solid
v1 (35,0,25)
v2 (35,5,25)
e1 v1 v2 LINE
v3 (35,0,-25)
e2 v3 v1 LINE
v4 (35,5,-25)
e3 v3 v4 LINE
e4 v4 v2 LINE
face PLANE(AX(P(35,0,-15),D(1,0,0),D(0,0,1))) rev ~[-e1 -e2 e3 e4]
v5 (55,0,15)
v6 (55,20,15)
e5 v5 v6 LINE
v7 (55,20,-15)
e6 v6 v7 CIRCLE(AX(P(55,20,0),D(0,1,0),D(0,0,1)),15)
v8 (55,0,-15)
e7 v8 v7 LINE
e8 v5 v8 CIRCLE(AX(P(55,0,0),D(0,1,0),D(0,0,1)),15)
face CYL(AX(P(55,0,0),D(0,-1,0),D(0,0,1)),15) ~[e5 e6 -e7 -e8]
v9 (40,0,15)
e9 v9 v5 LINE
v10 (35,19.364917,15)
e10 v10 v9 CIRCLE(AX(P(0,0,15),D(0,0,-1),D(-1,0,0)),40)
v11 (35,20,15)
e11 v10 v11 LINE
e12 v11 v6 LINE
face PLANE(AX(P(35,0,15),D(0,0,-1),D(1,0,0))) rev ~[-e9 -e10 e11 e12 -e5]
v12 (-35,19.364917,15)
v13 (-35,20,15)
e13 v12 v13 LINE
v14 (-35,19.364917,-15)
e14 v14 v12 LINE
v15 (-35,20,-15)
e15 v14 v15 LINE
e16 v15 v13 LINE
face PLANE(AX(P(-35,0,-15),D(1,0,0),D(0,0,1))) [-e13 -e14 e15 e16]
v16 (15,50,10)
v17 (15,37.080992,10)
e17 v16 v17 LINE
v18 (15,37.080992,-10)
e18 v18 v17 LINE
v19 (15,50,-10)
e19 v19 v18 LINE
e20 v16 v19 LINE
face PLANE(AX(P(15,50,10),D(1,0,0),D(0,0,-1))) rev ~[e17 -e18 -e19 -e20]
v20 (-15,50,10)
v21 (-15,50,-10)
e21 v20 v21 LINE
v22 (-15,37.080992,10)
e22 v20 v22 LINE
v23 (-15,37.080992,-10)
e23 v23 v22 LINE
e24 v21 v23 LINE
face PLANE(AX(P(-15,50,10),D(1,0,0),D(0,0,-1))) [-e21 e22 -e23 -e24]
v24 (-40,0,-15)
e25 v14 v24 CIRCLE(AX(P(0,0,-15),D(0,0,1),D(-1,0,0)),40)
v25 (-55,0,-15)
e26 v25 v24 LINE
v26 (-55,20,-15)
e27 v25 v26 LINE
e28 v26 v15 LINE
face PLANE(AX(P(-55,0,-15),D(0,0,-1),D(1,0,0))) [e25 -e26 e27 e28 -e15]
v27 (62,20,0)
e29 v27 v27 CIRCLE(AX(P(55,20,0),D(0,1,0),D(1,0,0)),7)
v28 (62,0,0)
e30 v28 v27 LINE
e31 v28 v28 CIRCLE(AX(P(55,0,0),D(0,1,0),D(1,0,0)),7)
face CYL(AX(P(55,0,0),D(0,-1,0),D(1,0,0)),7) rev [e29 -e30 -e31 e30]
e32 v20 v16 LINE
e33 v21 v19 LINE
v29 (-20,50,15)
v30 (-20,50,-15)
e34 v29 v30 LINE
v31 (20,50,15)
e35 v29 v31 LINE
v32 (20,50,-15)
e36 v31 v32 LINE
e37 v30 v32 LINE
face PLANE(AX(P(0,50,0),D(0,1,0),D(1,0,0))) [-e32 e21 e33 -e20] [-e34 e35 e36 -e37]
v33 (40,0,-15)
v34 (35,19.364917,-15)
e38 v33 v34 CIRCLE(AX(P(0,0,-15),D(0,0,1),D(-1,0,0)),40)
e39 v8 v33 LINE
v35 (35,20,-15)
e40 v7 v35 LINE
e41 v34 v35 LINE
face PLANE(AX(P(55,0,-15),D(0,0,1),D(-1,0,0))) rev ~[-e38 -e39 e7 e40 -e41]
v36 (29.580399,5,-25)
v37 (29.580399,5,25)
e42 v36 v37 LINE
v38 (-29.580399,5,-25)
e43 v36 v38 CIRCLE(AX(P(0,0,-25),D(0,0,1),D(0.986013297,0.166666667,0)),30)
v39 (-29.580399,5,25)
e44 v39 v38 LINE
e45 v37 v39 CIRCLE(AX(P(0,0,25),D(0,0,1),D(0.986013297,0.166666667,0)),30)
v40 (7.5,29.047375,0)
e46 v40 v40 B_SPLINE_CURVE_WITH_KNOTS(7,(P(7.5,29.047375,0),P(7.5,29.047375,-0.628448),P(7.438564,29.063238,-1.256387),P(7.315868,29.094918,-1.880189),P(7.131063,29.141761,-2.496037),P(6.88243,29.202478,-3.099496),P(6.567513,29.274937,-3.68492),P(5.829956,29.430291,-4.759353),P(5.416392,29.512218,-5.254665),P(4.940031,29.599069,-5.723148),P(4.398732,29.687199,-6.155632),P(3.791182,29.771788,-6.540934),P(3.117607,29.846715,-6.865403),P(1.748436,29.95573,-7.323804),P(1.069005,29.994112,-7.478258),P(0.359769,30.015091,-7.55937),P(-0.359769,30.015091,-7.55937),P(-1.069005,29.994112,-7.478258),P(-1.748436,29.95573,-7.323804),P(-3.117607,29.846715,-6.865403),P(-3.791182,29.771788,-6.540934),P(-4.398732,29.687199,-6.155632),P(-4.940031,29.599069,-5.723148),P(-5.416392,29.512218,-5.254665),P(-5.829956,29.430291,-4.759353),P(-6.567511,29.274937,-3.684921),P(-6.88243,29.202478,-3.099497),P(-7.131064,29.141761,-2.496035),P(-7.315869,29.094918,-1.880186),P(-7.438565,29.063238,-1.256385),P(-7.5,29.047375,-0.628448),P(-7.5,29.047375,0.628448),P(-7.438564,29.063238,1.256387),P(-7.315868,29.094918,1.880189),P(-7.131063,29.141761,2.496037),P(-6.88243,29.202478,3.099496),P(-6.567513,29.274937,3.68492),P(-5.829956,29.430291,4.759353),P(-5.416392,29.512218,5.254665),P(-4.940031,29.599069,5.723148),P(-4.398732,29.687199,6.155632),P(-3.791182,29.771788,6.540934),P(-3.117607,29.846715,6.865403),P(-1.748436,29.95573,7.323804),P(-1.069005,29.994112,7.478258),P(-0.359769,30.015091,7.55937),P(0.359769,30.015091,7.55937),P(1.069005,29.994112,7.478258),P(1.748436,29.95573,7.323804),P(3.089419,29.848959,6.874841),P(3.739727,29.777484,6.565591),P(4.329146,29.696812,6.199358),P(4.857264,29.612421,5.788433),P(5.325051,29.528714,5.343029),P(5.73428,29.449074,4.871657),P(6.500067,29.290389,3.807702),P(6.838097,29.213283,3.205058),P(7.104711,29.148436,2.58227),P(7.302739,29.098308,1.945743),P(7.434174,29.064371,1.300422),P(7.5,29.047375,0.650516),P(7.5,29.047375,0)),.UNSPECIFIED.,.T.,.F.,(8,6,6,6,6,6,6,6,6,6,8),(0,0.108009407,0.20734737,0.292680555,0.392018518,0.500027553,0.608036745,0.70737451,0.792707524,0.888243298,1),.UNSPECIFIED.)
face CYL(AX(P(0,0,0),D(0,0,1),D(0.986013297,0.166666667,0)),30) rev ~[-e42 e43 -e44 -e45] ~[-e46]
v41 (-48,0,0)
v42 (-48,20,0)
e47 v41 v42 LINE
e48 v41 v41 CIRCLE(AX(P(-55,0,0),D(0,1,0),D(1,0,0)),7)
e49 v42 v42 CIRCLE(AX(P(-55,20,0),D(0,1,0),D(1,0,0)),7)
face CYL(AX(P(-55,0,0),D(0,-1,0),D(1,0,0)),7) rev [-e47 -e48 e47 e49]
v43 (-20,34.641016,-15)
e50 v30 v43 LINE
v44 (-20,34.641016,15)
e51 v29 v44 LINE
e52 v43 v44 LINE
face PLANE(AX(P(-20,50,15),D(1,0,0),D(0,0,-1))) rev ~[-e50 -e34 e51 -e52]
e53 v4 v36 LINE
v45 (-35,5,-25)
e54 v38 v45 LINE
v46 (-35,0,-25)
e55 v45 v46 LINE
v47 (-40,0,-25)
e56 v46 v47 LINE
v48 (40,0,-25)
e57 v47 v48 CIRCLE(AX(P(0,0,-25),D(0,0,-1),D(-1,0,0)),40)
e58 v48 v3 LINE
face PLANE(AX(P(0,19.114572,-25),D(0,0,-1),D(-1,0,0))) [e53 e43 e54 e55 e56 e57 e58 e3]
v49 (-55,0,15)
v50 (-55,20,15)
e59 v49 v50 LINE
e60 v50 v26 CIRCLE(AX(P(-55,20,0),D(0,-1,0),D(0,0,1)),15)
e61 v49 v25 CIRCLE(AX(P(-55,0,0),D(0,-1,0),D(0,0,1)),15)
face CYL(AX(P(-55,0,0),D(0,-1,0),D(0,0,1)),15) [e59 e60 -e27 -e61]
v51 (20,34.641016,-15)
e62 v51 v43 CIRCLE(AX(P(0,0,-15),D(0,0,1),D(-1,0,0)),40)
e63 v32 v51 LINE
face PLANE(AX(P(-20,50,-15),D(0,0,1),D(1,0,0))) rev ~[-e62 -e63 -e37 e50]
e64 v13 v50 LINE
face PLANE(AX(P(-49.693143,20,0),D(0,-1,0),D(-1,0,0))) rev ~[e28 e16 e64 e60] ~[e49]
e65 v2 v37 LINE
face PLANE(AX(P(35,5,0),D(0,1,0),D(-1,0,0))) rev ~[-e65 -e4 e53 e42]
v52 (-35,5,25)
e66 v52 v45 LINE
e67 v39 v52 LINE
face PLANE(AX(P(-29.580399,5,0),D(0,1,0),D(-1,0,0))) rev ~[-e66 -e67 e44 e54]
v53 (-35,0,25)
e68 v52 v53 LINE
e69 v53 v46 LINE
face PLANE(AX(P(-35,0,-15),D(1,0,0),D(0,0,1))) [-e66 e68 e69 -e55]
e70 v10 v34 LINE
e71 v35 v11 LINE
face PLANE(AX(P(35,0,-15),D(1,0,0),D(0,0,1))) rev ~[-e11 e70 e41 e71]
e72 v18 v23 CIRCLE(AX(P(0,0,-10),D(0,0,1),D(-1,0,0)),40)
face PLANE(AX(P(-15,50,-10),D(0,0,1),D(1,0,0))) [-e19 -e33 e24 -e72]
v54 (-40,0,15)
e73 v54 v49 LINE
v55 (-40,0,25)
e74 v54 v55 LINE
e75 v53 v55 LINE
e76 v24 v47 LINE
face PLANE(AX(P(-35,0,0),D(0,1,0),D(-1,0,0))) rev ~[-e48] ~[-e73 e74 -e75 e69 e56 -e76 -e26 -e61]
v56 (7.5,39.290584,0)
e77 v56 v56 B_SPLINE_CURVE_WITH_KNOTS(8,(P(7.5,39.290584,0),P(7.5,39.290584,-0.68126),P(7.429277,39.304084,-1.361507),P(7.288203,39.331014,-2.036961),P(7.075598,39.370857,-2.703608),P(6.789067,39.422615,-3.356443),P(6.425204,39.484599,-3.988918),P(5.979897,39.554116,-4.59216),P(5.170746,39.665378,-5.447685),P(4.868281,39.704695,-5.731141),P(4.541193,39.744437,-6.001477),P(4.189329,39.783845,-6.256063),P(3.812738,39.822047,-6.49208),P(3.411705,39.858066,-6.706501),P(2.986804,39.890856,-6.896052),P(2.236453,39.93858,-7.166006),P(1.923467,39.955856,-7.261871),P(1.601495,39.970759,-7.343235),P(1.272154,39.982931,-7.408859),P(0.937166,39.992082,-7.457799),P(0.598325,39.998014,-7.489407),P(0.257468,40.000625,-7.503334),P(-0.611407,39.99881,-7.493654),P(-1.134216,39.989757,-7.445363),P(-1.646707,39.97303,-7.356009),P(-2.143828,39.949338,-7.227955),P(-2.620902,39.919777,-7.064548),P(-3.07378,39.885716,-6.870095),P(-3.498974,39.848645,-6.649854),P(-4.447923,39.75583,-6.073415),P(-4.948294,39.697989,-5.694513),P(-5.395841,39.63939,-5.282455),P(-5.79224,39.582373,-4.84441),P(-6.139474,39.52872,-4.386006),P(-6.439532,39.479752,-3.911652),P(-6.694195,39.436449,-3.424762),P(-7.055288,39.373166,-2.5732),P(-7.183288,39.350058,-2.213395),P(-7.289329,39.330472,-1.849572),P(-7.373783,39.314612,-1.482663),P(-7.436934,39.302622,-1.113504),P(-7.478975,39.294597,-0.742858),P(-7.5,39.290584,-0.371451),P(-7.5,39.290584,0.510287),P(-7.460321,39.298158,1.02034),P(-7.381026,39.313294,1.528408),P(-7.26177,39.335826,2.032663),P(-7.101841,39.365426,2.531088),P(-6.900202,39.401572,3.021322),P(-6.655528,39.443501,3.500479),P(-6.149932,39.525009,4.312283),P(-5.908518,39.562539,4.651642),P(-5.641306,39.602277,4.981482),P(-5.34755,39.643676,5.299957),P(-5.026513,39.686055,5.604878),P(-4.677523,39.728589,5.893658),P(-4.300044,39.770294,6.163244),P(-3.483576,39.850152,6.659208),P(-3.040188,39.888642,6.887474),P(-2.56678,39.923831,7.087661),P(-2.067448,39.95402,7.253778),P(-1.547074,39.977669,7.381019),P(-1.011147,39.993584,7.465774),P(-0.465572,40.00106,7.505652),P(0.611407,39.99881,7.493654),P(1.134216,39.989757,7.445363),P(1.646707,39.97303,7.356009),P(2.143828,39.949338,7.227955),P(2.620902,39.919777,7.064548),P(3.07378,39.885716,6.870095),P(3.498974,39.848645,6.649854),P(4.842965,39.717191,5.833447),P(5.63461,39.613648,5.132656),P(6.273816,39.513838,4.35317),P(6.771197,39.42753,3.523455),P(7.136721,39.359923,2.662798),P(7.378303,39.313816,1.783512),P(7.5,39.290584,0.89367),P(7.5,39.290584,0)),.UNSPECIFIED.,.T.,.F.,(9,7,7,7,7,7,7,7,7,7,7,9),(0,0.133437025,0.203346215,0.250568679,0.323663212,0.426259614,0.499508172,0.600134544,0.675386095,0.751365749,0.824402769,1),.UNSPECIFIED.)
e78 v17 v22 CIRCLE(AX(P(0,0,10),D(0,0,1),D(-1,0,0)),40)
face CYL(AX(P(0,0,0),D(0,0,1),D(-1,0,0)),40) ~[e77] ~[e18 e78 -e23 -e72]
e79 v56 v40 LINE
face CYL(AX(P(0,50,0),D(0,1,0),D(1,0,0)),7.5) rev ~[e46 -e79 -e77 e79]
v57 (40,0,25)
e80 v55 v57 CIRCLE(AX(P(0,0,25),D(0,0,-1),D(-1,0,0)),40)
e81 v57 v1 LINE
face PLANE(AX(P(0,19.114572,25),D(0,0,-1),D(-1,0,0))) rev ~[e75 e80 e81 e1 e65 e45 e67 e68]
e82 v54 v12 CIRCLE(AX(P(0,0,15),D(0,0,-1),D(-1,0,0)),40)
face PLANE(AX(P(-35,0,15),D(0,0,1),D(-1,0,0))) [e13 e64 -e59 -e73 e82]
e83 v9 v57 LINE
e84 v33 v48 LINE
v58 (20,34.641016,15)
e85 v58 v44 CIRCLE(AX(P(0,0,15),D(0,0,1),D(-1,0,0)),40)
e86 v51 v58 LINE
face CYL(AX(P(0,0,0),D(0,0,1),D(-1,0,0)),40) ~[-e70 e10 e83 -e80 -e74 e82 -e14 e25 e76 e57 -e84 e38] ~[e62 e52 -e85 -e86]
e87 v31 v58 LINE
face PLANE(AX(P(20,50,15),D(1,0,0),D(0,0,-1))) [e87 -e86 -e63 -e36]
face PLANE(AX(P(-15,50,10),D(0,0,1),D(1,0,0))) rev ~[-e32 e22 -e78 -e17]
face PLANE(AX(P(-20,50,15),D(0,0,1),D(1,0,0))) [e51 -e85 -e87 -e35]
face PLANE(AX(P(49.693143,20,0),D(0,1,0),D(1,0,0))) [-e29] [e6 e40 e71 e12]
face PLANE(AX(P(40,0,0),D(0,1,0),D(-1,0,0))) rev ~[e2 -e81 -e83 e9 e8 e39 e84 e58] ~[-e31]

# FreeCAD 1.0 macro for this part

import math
import FreeCAD as App
import Part
import Sketcher

doc = App.newDocument("Part")
body = doc.addObject("PartDesign::Body", "Body")

sketch1 = body.newObject("Sketcher::SketchObject", "Sketch")
sketch1.AttachmentSupport = (doc.getObject("XZ_Plane"), [""])
sketch1.MapMode = "FlatFace"
sketch1.addGeometry([
    Part.LineSegment(App.Vector(-35, -15, 0), App.Vector(-55, -15, 0)),
    Part.ArcOfCircle(Part.Circle(App.Vector(-55, 0, 0), App.Vector(0, 0, 1), 15), math.radians(90), math.radians(270)),
    Part.LineSegment(App.Vector(-55, 15, 0), App.Vector(-35, 15, 0)),
    Part.LineSegment(App.Vector(-35, 15, 0), App.Vector(-35, -15, 0)),
    Part.Circle(App.Vector(-55, 0, 0), App.Vector(0, 0, 1), 7),
], False)
sketch1.addConstraint([
    Sketcher.Constraint("Tangent", 0, 2, 1, 2),
    Sketcher.Constraint("Tangent", 1, 1, 2, 1),
    Sketcher.Constraint("Coincident", 2, 2, 3, 1),
    Sketcher.Constraint("Coincident", 3, 2, 0, 1),
    Sketcher.Constraint("Horizontal", 0),
    Sketcher.Constraint("Horizontal", 2),
    Sketcher.Constraint("Vertical", 3),
    Sketcher.Constraint("Coincident", 4, 3, 1, 3),
    Sketcher.Constraint("PointOnObject", 1, 3, -1),
    Sketcher.Constraint("Diameter", 4, 14.0),
    Sketcher.Constraint("Radius", 1, 15.0),
    Sketcher.Constraint("DistanceX", 0, 2, 0, 1, 20.0),
    Sketcher.Constraint("DistanceX", 1, 3, -1, 1, 55.0),
])
pad1 = body.newObject("PartDesign::Pad", "Pad")
pad1.Profile = sketch1
pad1.Length = 20
pad1.Reversed = True
body2 = doc.addObject("PartDesign::Body", "Body001")

sketch2 = body2.newObject("Sketcher::SketchObject", "Sketch001")
sketch2.AttachmentSupport = (doc.getObject("XZ_Plane001"), [""])
sketch2.MapMode = "FlatFace"
sketch2.addGeometry([
    Part.LineSegment(App.Vector(35, 15, 0), App.Vector(55, 15, 0)),
    Part.ArcOfCircle(Part.Circle(App.Vector(55, 0, 0), App.Vector(0, 0, 1), 15), math.radians(-90), math.radians(90)),
    Part.LineSegment(App.Vector(55, -15, 0), App.Vector(35, -15, 0)),
    Part.LineSegment(App.Vector(35, -15, 0), App.Vector(35, 15, 0)),
    Part.Circle(App.Vector(55, 0, 0), App.Vector(0, 0, 1), 7),
], False)
sketch2.addConstraint([
    Sketcher.Constraint("Tangent", 0, 2, 1, 2),
    Sketcher.Constraint("Tangent", 1, 1, 2, 1),
    Sketcher.Constraint("Coincident", 2, 2, 3, 1),
    Sketcher.Constraint("Coincident", 3, 2, 0, 1),
    Sketcher.Constraint("Horizontal", 0),
    Sketcher.Constraint("Horizontal", 2),
    Sketcher.Constraint("Vertical", 3),
    Sketcher.Constraint("Coincident", 4, 3, 1, 3),
    Sketcher.Constraint("PointOnObject", 1, 3, -1),
    Sketcher.Constraint("Diameter", 4, 14.0),
    Sketcher.Constraint("Radius", 1, 15.0),
    Sketcher.Constraint("DistanceX", 0, 1, 0, 2, 20.0),
    Sketcher.Constraint("DistanceX", -1, 1, 1, 3, 55.0),
])
pad2 = body2.newObject("PartDesign::Pad", "Pad001")
pad2.Profile = sketch2
pad2.Length = 20
pad2.Reversed = True
body.AllowCompound = True
doc.recompute()

boolean = body.newObject("PartDesign::Boolean", "Boolean")
boolean.Type = "Fuse"
boolean.addObjects([body2])

sketch3 = body.newObject("Sketcher::SketchObject", "Sketch002")
sketch3.AttachmentSupport = (doc.getObject("XY_Plane"), [""])
sketch3.MapMode = "FlatFace"
sketch3.addGeometry([
    Part.ArcOfCircle(Part.Circle(App.Vector(0, 0, 0), App.Vector(0, 0, 1), 30), math.radians(10), math.radians(170)),
    Part.LineSegment(App.Vector(30, 5, 0), App.Vector(35, 5, 0)),
    Part.LineSegment(App.Vector(35, 5, 0), App.Vector(35, 0, 0)),
    Part.LineSegment(App.Vector(35, 0, 0), App.Vector(40, 0, 0)),
    Part.ArcOfCircle(Part.Circle(App.Vector(0, 0, 0), App.Vector(0, 0, 1), 40), math.radians(0), math.radians(180)),
    Part.LineSegment(App.Vector(-40, 0, 0), App.Vector(-35, 0, 0)),
    Part.LineSegment(App.Vector(-35, 0, 0), App.Vector(-35, 5, 0)),
    Part.LineSegment(App.Vector(-35, 5, 0), App.Vector(-30, 5, 0)),
], False)
sketch3.addConstraint([
    Sketcher.Constraint("Coincident", 0, 1, 1, 1),
    Sketcher.Constraint("Coincident", 1, 2, 2, 1),
    Sketcher.Constraint("Coincident", 2, 2, 3, 1),
    Sketcher.Constraint("Coincident", 3, 2, 4, 1),
    Sketcher.Constraint("Coincident", 4, 2, 5, 1),
    Sketcher.Constraint("Coincident", 5, 2, 6, 1),
    Sketcher.Constraint("Coincident", 6, 2, 7, 1),
    Sketcher.Constraint("Coincident", 7, 2, 0, 2),
    Sketcher.Constraint("Horizontal", 1),
    Sketcher.Constraint("Vertical", 2),
    Sketcher.Constraint("Horizontal", 3),
    Sketcher.Constraint("Horizontal", 5),
    Sketcher.Constraint("Vertical", 6),
    Sketcher.Constraint("Horizontal", 7),
    Sketcher.Constraint("Coincident", 0, 3, -1, 1),
    Sketcher.Constraint("Coincident", 4, 3, -1, 1),
    Sketcher.Constraint("Symmetric", 2, 2, 5, 2, -1, 1),
    Sketcher.Constraint("PointOnObject", 2, 2, -1),
    Sketcher.Constraint("Horizontal", 1, 2, 6, 2),
    Sketcher.Constraint("Equal", 5, 2),
    Sketcher.Constraint("Radius", 0, 30.0),
    Sketcher.Constraint("Radius", 4, 40.0),
    Sketcher.Constraint("DistanceX", 3, 1, 3, 2, 5.0),
])
pad3 = body.newObject("PartDesign::Pad", "Pad002")
pad3.Profile = sketch3
pad3.Type = "TwoLengths"
pad3.Length = 25
pad3.Length2 = 25

sketch4 = body.newObject("Sketcher::SketchObject", "Sketch003")
sketch4.AttachmentSupport = (doc.getObject("XZ_Plane"), [""])
sketch4.MapMode = "FlatFace"
sketch4.AttachmentOffset = App.Placement(App.Vector(0, 0, -50), App.Rotation())
sketch4.addGeometry([
    Part.LineSegment(App.Vector(-20, -15, 0), App.Vector(-20, 15, 0)),
    Part.LineSegment(App.Vector(-20, 15, 0), App.Vector(20, 15, 0)),
    Part.LineSegment(App.Vector(20, 15, 0), App.Vector(20, -15, 0)),
    Part.LineSegment(App.Vector(20, -15, 0), App.Vector(-20, -15, 0)),
    Part.LineSegment(App.Vector(15, 10, 0), App.Vector(-15, 10, 0)),
    Part.LineSegment(App.Vector(-15, 10, 0), App.Vector(-15, -10, 0)),
    Part.LineSegment(App.Vector(-15, -10, 0), App.Vector(15, -10, 0)),
    Part.LineSegment(App.Vector(15, -10, 0), App.Vector(15, 10, 0)),
], False)
sketch4.addConstraint([
    Sketcher.Constraint("Coincident", 0, 2, 1, 1),
    Sketcher.Constraint("Coincident", 1, 2, 2, 1),
    Sketcher.Constraint("Coincident", 2, 2, 3, 1),
    Sketcher.Constraint("Coincident", 3, 2, 0, 1),
    Sketcher.Constraint("Coincident", 4, 2, 5, 1),
    Sketcher.Constraint("Coincident", 5, 2, 6, 1),
    Sketcher.Constraint("Coincident", 6, 2, 7, 1),
    Sketcher.Constraint("Coincident", 7, 2, 4, 1),
    Sketcher.Constraint("Vertical", 0),
    Sketcher.Constraint("Horizontal", 1),
    Sketcher.Constraint("Vertical", 2),
    Sketcher.Constraint("Horizontal", 3),
    Sketcher.Constraint("Horizontal", 4),
    Sketcher.Constraint("Vertical", 5),
    Sketcher.Constraint("Horizontal", 6),
    Sketcher.Constraint("Vertical", 7),
    Sketcher.Constraint("Symmetric", 0, 2, 2, 2, -1, 1),
    Sketcher.Constraint("Symmetric", 4, 2, 6, 2, -1, 1),
    Sketcher.Constraint("Equal", 6, 0),
    Sketcher.Constraint("DistanceX", 1, 1, 1, 2, 40.0),
    Sketcher.Constraint("DistanceX", 4, 2, 4, 1, 30.0),
    Sketcher.Constraint("DistanceY", 5, 2, 5, 1, 20.0),
])
pad4 = body.newObject("PartDesign::Pad", "Pad003")
pad4.Profile = sketch4
pad4.Type = "UpToFirst"

sketch5 = body.newObject("Sketcher::SketchObject", "Sketch004")
sketch5.AttachmentSupport = (doc.getObject("XZ_Plane"), [""])
sketch5.MapMode = "FlatFace"
sketch5.AttachmentOffset = App.Placement(App.Vector(0, 0, -50), App.Rotation())
sketch5.addGeometry(Part.Circle(App.Vector(0, 0, 0), App.Vector(0, 0, 1), 8), False)
sketch5.addConstraint([
    Sketcher.Constraint("Coincident", 0, 3, -1, 1),
    Sketcher.Constraint("Diameter", 0, 15.0),
])
pocket1 = body.newObject("PartDesign::Pocket", "Pocket")
pocket1.Profile = sketch5
pocket1.Type = "ThroughAll"
pocket1.Reversed = True

doc.recompute()
